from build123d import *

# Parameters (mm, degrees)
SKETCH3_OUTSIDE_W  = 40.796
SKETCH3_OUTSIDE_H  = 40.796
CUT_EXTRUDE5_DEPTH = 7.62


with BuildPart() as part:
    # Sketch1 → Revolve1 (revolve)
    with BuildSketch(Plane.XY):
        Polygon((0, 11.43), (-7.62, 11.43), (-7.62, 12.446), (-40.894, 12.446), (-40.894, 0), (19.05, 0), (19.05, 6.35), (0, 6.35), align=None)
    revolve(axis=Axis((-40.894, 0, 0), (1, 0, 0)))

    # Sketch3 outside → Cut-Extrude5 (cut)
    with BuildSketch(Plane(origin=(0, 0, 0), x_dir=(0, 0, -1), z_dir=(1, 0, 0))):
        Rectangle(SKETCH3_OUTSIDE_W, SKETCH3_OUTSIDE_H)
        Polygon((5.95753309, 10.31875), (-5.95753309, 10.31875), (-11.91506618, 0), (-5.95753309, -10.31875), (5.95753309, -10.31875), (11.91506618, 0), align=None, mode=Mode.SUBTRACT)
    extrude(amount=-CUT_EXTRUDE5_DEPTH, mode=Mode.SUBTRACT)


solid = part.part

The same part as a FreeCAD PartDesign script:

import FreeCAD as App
import Part
import Sketcher
Q = App.Units.Quantity


def add_polygon(sketch, points):
    """Adds a closed chain of lines whose ends are joined by coincident constraints."""
    first, n = sketch.GeometryCount, len(points)
    for a, b in zip(points, points[1:] + points[:1]):
        sketch.addGeometry(Part.LineSegment(App.Vector(*a, 0), App.Vector(*b, 0)), False)
    for i in range(n):
        sketch.addConstraint(Sketcher.Constraint("Coincident", first + i, 2, first + (i + 1) % n, 1))

doc = App.newDocument("Part")
body = doc.addObject("PartDesign::Body", "Body")

# Sketch on XY plane
sketch1 = doc.addObject("Sketcher::SketchObject", "Sketch")
body.addObject(sketch1)
sketch1.AttachmentSupport = (doc.XY_Plane, [""])
sketch1.MapMode = "FlatFace"
add_polygon(sketch1, [(0, 11.4), (-7.6, 11.4), (-7.6, 12.4), (-40.9, 12.4), (-40.9, 0), (19.1, 0), (19.1, 6.3), (0, 6.3)])  # lines 0-7
sketch1.addConstraint([
    Sketcher.Constraint("Horizontal", 0),
    Sketcher.Constraint("Vertical", 1),
    Sketcher.Constraint("Horizontal", 2),
    Sketcher.Constraint("Vertical", 3),
    Sketcher.Constraint("Horizontal", 4),
    Sketcher.Constraint("Vertical", 5),
    Sketcher.Constraint("Horizontal", 6),
    Sketcher.Constraint("Vertical", 7),
    Sketcher.Constraint("PointOnObject", 3, 2, -1),
    Sketcher.Constraint("PointOnObject", 6, 2, -2),
    Sketcher.Constraint("DistanceX", 0, 2, 0, 1, Q("0.3 in")),
    Sketcher.Constraint("DistanceY", 7, 1, 7, 2, Q("0.2 in")),
    Sketcher.Constraint("DistanceX", 2, 2, 2, 1, Q("1.31 in")),
    Sketcher.Constraint("DistanceX", 4, 1, 4, 2, Q("2.36 in")),
    Sketcher.Constraint("DistanceY", 1, 1, 1, 2, Q("0.04 in")),
    Sketcher.Constraint("DistanceY", 3, 2, 3, 1, Q("0.49 in")),
])
revolution = doc.addObject("PartDesign::Revolution", "Revolution")
body.addObject(revolution)
revolution.Profile = sketch1
revolution.ReferenceAxis = (sketch1, ["H_Axis"])
revolution.Angle = 360

# Sketch on YZ plane
sketch2 = doc.addObject("Sketcher::SketchObject", "Sketch001")
body.addObject(sketch2)
sketch2.AttachmentSupport = (doc.YZ_Plane, [""])
sketch2.MapMode = "FlatFace"
add_polygon(sketch2, [(20, 20), (-20, 20), (-20, -20), (20, -20)])  # lines 0-3
add_polygon(sketch2, [(10, 6), (10, -6), (0, -12), (-10, -6), (-10, 6), (0, 12)])  # lines 4-9
sketch2.addConstraint([
    Sketcher.Constraint("Horizontal", 0),
    Sketcher.Constraint("Vertical", 1),
    Sketcher.Constraint("Horizontal", 2),
    Sketcher.Constraint("Vertical", 3),
    Sketcher.Constraint("Vertical", 4),
    Sketcher.Constraint("Vertical", 7),
    Sketcher.Constraint("Symmetric", 0, 2, 2, 2, -1, 1),
    Sketcher.Constraint("Symmetric", 4, 2, 7, 2, -1, 1),
    Sketcher.Constraint("Symmetric", 5, 2, 8, 2, -1, 1),
    Sketcher.Constraint("PointOnObject", 5, 2, -2),
    Sketcher.Constraint("Parallel", 6, 9),
    Sketcher.Constraint("Horizontal", 4, 2, 6, 2),
    Sketcher.Constraint("Equal", 2, 1),
    Sketcher.Constraint("Angle", 5, Q("-150 deg")),
    Sketcher.Constraint("DistanceX", -1, 1, 4, 2, Q("0.40625 in")),
    Sketcher.Constraint("DistanceX", 0, 2, 0, 1, Q("40.796 mm")),
    Sketcher.Constraint("DistanceY", 5, 2, 7, 2, Q("17.872599 mm")),
])
pocket1 = doc.addObject("PartDesign::Pocket", "Pocket")
body.addObject(pocket1)
pocket1.Profile = sketch2
pocket1.Length = Q("0.3 in")

doc.recompute()
